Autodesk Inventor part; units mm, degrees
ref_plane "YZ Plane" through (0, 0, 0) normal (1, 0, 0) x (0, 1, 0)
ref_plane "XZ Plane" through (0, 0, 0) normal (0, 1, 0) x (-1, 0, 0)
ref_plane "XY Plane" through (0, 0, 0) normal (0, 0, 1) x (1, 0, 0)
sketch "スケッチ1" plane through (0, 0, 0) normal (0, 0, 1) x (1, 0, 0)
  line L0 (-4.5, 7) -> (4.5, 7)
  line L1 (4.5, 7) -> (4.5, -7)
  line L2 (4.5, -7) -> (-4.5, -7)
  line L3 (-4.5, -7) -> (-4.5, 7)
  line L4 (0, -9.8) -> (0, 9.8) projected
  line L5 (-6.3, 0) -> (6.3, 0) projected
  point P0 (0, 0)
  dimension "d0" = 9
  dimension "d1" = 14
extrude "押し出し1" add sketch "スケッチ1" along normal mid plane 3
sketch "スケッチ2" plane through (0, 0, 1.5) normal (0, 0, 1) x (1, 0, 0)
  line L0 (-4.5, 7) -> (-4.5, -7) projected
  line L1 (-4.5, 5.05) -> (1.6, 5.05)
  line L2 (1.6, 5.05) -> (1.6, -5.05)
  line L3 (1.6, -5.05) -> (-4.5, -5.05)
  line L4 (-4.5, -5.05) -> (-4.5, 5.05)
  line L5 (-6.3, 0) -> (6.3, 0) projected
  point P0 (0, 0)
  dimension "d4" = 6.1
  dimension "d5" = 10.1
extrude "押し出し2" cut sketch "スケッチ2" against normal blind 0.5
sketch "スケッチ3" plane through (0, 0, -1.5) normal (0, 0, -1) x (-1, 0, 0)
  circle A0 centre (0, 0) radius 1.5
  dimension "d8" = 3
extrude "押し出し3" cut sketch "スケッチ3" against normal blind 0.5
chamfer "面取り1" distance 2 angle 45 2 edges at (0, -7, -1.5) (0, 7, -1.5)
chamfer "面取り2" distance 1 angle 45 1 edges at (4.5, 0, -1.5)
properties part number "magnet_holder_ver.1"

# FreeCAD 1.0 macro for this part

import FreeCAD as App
import Part
import Sketcher
from FreeCAD import Vector


def edges_at(feature, points):
    """Names of the edges that pass closest to the given points."""
    edges = feature.Shape.Edges
    near = lambda p: min(range(len(edges)), key=lambda i: edges[i].distToShape(Part.Vertex(*p))[0])
    return sorted({f"Edge{near(p) + 1}" for p in points})


def add_polygon(sketch, points):
    """Adds a closed chain of lines whose ends are joined by coincident constraints."""
    first, n = sketch.GeometryCount, len(points)
    for a, b in zip(points, points[1:] + points[:1]):
        sketch.addGeometry(Part.LineSegment(App.Vector(*a, 0), App.Vector(*b, 0)), False)
    for i in range(n):
        sketch.addConstraint(Sketcher.Constraint("Coincident", first + i, 2, first + (i + 1) % n, 1))

doc = App.newDocument("Part")
body = doc.addObject("PartDesign::Body", "Body")

sketch1 = doc.addObject("Sketcher::SketchObject", "Sketch")
body.addObject(sketch1)
sketch1.AttachmentSupport = (doc.XY_Plane, [""])
sketch1.MapMode = "FlatFace"
add_polygon(sketch1, [(-4.5, 7), (-4.5, -7), (4.5, -7), (4.5, 7)])
sketch1.addConstraint([
    Sketcher.Constraint("Vertical", 0),
    Sketcher.Constraint("Horizontal", 1),
    Sketcher.Constraint("Vertical", 2),
    Sketcher.Constraint("Horizontal", 3),
    Sketcher.Constraint("Symmetric", 0, 2, 2, 2, -1, 1),
    Sketcher.Constraint("DistanceX", 1, 1, 1, 2, 9.0),
    Sketcher.Constraint("DistanceY", 0, 2, 0, 1, 14.0),
])
pad1 = doc.addObject("PartDesign::Pad", "Pad")
body.addObject(pad1)
pad1.Profile = sketch1
pad1.Length = 3
pad1.Midplane = True

sketch2 = doc.addObject("Sketcher::SketchObject", "Sketch001")
body.addObject(sketch2)
sketch2.AttachmentSupport = (doc.XY_Plane, [""])
sketch2.MapMode = "FlatFace"
sketch2.AttachmentOffset = App.Placement(Vector(0, 0, 1.5), App.Rotation())
add_polygon(sketch2, [(1.6, 5.05), (-4.5, 5.05), (-4.5, -5.05), (1.6, -5.05)])
sketch2.addConstraint([
    Sketcher.Constraint("Horizontal", 0),
    Sketcher.Constraint("Vertical", 1),
    Sketcher.Constraint("Horizontal", 2),
    Sketcher.Constraint("Vertical", 3),
    Sketcher.Constraint("DistanceX", 0, 2, 0, 1, 6.1),
    Sketcher.Constraint("DistanceY", 1, 2, 1, 1, 10.1),
    Sketcher.Constraint("DistanceX", 0, 2, -1, 1, 4.5),
    Sketcher.Constraint("DistanceY", -1, 1, 0, 2, 5.05),
])
pocket1 = doc.addObject("PartDesign::Pocket", "Pocket")
body.addObject(pocket1)
pocket1.Profile = sketch2
pocket1.Length = 0.5

sketch3 = doc.addObject("Sketcher::SketchObject", "Sketch002")
body.addObject(sketch3)
sketch3.AttachmentSupport = (doc.XY_Plane, [""])
sketch3.MapMode = "FlatFace"
sketch3.AttachmentOffset = App.Placement(Vector(0, 0, -1.5), App.Rotation())
sketch3.addGeometry(Part.Circle(Vector(0, 0, 0), Vector(0, 0, 1), 1.5), False)
sketch3.addConstraint([
    Sketcher.Constraint("Coincident", 0, 3, -1, 1),
    Sketcher.Constraint("Diameter", 0, 3.0),
])
pocket2 = doc.addObject("PartDesign::Pocket", "Pocket001")
body.addObject(pocket2)
pocket2.Profile = sketch3
pocket2.Length = 0.5
pocket2.Reversed = True
doc.recompute()

chamfer = doc.addObject("PartDesign::Chamfer", "Chamfer")
body.addObject(chamfer)
chamfer.Base = (pocket2, edges_at(pocket2, [(0, -7, -1.5), (0, 7, -1.5)]))
chamfer.Size = 2
doc.recompute()

chamfer2 = doc.addObject("PartDesign::Chamfer", "Chamfer001")
body.addObject(chamfer2)
chamfer2.Base = (chamfer, edges_at(chamfer, [(4.5, 0, -1.5)]))
chamfer2.Size = 1

doc.recompute()
